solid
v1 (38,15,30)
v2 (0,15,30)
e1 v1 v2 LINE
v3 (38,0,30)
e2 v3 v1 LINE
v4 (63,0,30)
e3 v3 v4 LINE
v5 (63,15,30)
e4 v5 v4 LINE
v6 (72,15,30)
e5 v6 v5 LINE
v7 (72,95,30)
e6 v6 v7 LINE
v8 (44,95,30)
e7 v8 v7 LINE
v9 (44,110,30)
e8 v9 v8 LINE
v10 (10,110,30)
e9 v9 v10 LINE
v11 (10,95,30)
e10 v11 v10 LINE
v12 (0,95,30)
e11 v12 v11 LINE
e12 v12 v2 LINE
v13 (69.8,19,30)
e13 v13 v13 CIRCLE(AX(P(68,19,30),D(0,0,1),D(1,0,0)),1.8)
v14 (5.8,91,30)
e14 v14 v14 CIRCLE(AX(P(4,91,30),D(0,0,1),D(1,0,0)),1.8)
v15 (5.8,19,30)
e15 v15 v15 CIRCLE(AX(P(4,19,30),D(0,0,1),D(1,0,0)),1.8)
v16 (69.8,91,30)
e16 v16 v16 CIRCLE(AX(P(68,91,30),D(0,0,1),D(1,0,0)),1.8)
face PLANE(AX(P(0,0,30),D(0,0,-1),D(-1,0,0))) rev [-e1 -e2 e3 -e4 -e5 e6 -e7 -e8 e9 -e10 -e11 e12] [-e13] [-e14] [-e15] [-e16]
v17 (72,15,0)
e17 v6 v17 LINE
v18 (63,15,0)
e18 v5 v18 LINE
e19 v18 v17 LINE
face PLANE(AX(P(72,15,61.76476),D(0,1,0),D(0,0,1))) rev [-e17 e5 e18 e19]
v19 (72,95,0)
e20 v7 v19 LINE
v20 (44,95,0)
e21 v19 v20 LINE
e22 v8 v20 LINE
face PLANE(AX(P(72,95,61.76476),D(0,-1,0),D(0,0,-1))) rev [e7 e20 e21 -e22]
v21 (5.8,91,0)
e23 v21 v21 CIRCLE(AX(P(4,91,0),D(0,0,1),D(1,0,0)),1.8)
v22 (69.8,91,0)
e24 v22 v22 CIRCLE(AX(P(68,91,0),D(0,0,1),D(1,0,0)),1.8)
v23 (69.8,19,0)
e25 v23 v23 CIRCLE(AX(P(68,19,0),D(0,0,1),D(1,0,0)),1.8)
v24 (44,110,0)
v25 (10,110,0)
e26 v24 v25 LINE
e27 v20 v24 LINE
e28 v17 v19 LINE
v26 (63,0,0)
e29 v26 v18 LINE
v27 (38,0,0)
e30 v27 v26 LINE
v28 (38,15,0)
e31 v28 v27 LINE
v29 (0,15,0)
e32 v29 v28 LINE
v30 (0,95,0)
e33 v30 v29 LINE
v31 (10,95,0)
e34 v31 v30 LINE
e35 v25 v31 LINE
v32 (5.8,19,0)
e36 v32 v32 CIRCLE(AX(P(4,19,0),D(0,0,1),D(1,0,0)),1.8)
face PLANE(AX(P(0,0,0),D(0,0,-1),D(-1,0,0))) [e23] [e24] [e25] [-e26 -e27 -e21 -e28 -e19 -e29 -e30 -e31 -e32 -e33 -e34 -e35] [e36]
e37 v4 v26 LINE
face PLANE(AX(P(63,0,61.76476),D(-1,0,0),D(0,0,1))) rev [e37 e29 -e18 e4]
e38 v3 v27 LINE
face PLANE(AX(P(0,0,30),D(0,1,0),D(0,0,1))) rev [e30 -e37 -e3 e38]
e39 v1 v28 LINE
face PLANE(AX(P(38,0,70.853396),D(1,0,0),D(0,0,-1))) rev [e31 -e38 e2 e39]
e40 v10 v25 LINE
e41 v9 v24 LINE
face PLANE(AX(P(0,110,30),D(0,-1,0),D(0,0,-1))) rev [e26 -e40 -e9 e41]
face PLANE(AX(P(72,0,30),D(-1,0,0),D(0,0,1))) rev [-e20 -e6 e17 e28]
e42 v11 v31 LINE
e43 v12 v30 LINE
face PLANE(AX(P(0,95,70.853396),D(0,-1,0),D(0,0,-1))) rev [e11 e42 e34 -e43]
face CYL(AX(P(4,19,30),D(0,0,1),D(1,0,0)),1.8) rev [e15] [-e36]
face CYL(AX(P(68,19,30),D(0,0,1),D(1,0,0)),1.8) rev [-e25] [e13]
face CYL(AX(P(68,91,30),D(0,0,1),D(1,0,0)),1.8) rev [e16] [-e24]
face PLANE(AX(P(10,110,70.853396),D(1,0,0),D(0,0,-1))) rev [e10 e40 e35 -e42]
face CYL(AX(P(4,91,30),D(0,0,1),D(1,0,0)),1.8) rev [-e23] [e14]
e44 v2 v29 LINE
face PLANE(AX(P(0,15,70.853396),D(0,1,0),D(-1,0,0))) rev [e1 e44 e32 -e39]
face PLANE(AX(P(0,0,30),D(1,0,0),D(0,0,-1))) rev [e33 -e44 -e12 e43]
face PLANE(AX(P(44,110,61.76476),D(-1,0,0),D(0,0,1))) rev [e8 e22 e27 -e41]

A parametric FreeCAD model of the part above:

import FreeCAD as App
import Part
import Sketcher
Q = App.Units.Quantity

doc = App.newDocument("Part")
body = doc.addObject("PartDesign::Body", "Body")

# Sketch on XY plane
sketch1 = doc.addObject("Sketcher::SketchObject", "Sketch")
body.addObject(sketch1)
sketch1.AttachmentSupport = (doc.XY_Plane, [""])
sketch1.MapMode = "FlatFace"
sketch1.addGeometry([
    Part.LineSegment(App.Vector(0, 110, 0), App.Vector(0, 0, 0)),
    Part.LineSegment(App.Vector(0, 0, 0), App.Vector(72, 0, 0)),
    Part.LineSegment(App.Vector(72, 0, 0), App.Vector(72, 110, 0)),
    Part.LineSegment(App.Vector(72, 110, 0), App.Vector(0, 110, 0)),
], False)
sketch1.addConstraint([
    Sketcher.Constraint("Coincident", 0, 2, 1, 1),
    Sketcher.Constraint("Coincident", 1, 2, 2, 1),
    Sketcher.Constraint("Coincident", 2, 2, 3, 1),
    Sketcher.Constraint("Coincident", 3, 2, 0, 1),
    Sketcher.Constraint("Vertical", 0),
    Sketcher.Constraint("Horizontal", 1),
    Sketcher.Constraint("Vertical", 2),
    Sketcher.Constraint("Horizontal", 3),
    Sketcher.Constraint("Coincident", 0, 2, -1, 1),
    Sketcher.Constraint("DistanceX", 1, 1, 1, 2, Q("72 mm")),
    Sketcher.Constraint("DistanceY", 0, 2, 0, 1, Q("110 mm")),
])
pad1 = doc.addObject("PartDesign::Pad", "Pad")
body.addObject(pad1)
pad1.Profile = sketch1
pad1.Length = 30

# Sketch on XY plane
sketch2 = doc.addObject("Sketcher::SketchObject", "Sketch001")
body.addObject(sketch2)
sketch2.AttachmentSupport = (doc.XY_Plane, [""])
sketch2.MapMode = "FlatFace"
sketch2.AttachmentOffset = App.Placement(App.Vector(0, 0, 30), App.Rotation())
sketch2.addGeometry([
    Part.Circle(App.Vector(4, 91, 0), App.Vector(0, 0, 1), 1.8),
    Part.Circle(App.Vector(68, 91, 0), App.Vector(0, 0, 1), 1.8),
    Part.Circle(App.Vector(4, 19, 0), App.Vector(0, 0, 1), 1.8),
    Part.Circle(App.Vector(68, 19, 0), App.Vector(0, 0, 1), 1.8),
], False)
sketch2.addConstraint([
    Sketcher.Constraint("Equal", 0, 1),
    Sketcher.Constraint("Equal", 1, 2),
    Sketcher.Constraint("Equal", 2, 3),
    Sketcher.Constraint("Horizontal", 0, 3, 1, 3),
    Sketcher.Constraint("Horizontal", 2, 3, 3, 3),
    Sketcher.Constraint("Vertical", 0, 3, 2, 3),
    Sketcher.Constraint("Vertical", 1, 3, 3, 3),
    Sketcher.Constraint("Diameter", 0, Q("3.6 mm")),
    Sketcher.Constraint("DistanceX", -1, 1, 0, 3, Q("4 mm")),
    Sketcher.Constraint("DistanceY", -1, 1, 0, 3, Q("91 mm")),
    Sketcher.Constraint("DistanceX", -1, 1, 1, 3, Q("68 mm")),
    Sketcher.Constraint("DistanceY", -1, 1, 2, 3, Q("19 mm")),
])
doc.recompute()
hole = doc.addObject("PartDesign::Hole", "Hole")
body.addObject(hole)
hole.Profile = sketch2
hole.ThreadType = "None"
hole.Diameter = 3.6
hole.DepthType = "ThroughAll"

# Sketch on XY plane
sketch3 = doc.addObject("Sketcher::SketchObject", "Sketch002")
body.addObject(sketch3)
sketch3.AttachmentSupport = (doc.XY_Plane, [""])
sketch3.MapMode = "FlatFace"
sketch3.addGeometry([
    Part.LineSegment(App.Vector(10, 110, 0), App.Vector(10, 95, 0)),  # 0
    Part.LineSegment(App.Vector(10, 95, 0), App.Vector(0, 95, 0)),  # 1
    Part.LineSegment(App.Vector(0, 95, 0), App.Vector(0, 110, 0)),  # 2
    Part.LineSegment(App.Vector(0, 110, 0), App.Vector(10, 110, 0)),  # 3
    Part.LineSegment(App.Vector(38, 15, 0), App.Vector(38, 0, 0)),  # 4
    Part.LineSegment(App.Vector(38, 0, 0), App.Vector(0, 0, 0)),  # 5
    Part.LineSegment(App.Vector(0, 0, 0), App.Vector(0, 15, 0)),  # 6
    Part.LineSegment(App.Vector(0, 15, 0), App.Vector(38, 15, 0)),  # 7
], False)
sketch3.addConstraint([
    Sketcher.Constraint("Coincident", 0, 2, 1, 1),
    Sketcher.Constraint("Coincident", 1, 2, 2, 1),
    Sketcher.Constraint("Coincident", 2, 2, 3, 1),
    Sketcher.Constraint("Coincident", 3, 2, 0, 1),
    Sketcher.Constraint("Coincident", 4, 2, 5, 1),
    Sketcher.Constraint("Coincident", 5, 2, 6, 1),
    Sketcher.Constraint("Coincident", 6, 2, 7, 1),
    Sketcher.Constraint("Coincident", 7, 2, 4, 1),
    Sketcher.Constraint("Vertical", 0),
    Sketcher.Constraint("Horizontal", 1),
    Sketcher.Constraint("Vertical", 2),
    Sketcher.Constraint("Horizontal", 3),
    Sketcher.Constraint("Vertical", 4),
    Sketcher.Constraint("Horizontal", 5),
    Sketcher.Constraint("Vertical", 6),
    Sketcher.Constraint("Horizontal", 7),
    Sketcher.Constraint("Coincident", 5, 2, -1, 1),
    Sketcher.Constraint("PointOnObject", 1, 2, -2),
    Sketcher.Constraint("Equal", 2, 4),
    Sketcher.Constraint("DistanceX", 1, 2, 1, 1, Q("10 mm")),
    Sketcher.Constraint("DistanceX", 5, 2, 5, 1, Q("38 mm")),
    Sketcher.Constraint("DistanceY", 0, 2, 0, 1, Q("15 mm")),
    Sketcher.Constraint("DistanceY", -1, 1, 0, 2, Q("95 mm")),
])
pocket1 = doc.addObject("PartDesign::Pocket", "Pocket")
body.addObject(pocket1)
pocket1.Profile = sketch3
pocket1.Length = 30
pocket1.Reversed = True

# Sketch on XY plane
sketch4 = doc.addObject("Sketcher::SketchObject", "Sketch003")
body.addObject(sketch4)
sketch4.AttachmentSupport = (doc.XY_Plane, [""])
sketch4.MapMode = "FlatFace"
sketch4.addGeometry([
    Part.LineSegment(App.Vector(72, 110, 0), App.Vector(72, 95, 0)),  # 0
    Part.LineSegment(App.Vector(72, 95, 0), App.Vector(44, 95, 0)),  # 1
    Part.LineSegment(App.Vector(44, 95, 0), App.Vector(44, 110, 0)),  # 2
    Part.LineSegment(App.Vector(44, 110, 0), App.Vector(72, 110, 0)),  # 3
    Part.LineSegment(App.Vector(72, 15, 0), App.Vector(72, 0, 0)),  # 4
    Part.LineSegment(App.Vector(72, 0, 0), App.Vector(63, 0, 0)),  # 5
    Part.LineSegment(App.Vector(63, 0, 0), App.Vector(63, 15, 0)),  # 6
    Part.LineSegment(App.Vector(63, 15, 0), App.Vector(72, 15, 0)),  # 7
], False)
sketch4.addConstraint([
    Sketcher.Constraint("Coincident", 0, 2, 1, 1),
    Sketcher.Constraint("Coincident", 1, 2, 2, 1),
    Sketcher.Constraint("Coincident", 2, 2, 3, 1),
    Sketcher.Constraint("Coincident", 3, 2, 0, 1),
    Sketcher.Constraint("Coincident", 4, 2, 5, 1),
    Sketcher.Constraint("Coincident", 5, 2, 6, 1),
    Sketcher.Constraint("Coincident", 6, 2, 7, 1),
    Sketcher.Constraint("Coincident", 7, 2, 4, 1),
    Sketcher.Constraint("Vertical", 0),
    Sketcher.Constraint("Horizontal", 1),
    Sketcher.Constraint("Vertical", 2),
    Sketcher.Constraint("Horizontal", 3),
    Sketcher.Constraint("Vertical", 4),
    Sketcher.Constraint("Horizontal", 5),
    Sketcher.Constraint("Vertical", 6),
    Sketcher.Constraint("Horizontal", 7),
    Sketcher.Constraint("PointOnObject", 4, 2, -1),
    Sketcher.Constraint("Vertical", 3, 2, 4, 2),
    Sketcher.Constraint("Equal", 2, 4),
    Sketcher.Constraint("DistanceX", 1, 2, 1, 1, Q("28 mm")),
    Sketcher.Constraint("DistanceX", 5, 2, 5, 1, Q("9 mm")),
    Sketcher.Constraint("DistanceY", 0, 2, 0, 1, Q("15 mm")),
    Sketcher.Constraint("DistanceX", -1, 1, 0, 2, Q("72 mm")),
    Sketcher.Constraint("DistanceY", -1, 1, 0, 2, Q("95 mm")),
])
pocket2 = doc.addObject("PartDesign::Pocket", "Pocket001")
body.addObject(pocket2)
pocket2.Profile = sketch4
pocket2.Length = 30
pocket2.Reversed = True

doc.recompute()
